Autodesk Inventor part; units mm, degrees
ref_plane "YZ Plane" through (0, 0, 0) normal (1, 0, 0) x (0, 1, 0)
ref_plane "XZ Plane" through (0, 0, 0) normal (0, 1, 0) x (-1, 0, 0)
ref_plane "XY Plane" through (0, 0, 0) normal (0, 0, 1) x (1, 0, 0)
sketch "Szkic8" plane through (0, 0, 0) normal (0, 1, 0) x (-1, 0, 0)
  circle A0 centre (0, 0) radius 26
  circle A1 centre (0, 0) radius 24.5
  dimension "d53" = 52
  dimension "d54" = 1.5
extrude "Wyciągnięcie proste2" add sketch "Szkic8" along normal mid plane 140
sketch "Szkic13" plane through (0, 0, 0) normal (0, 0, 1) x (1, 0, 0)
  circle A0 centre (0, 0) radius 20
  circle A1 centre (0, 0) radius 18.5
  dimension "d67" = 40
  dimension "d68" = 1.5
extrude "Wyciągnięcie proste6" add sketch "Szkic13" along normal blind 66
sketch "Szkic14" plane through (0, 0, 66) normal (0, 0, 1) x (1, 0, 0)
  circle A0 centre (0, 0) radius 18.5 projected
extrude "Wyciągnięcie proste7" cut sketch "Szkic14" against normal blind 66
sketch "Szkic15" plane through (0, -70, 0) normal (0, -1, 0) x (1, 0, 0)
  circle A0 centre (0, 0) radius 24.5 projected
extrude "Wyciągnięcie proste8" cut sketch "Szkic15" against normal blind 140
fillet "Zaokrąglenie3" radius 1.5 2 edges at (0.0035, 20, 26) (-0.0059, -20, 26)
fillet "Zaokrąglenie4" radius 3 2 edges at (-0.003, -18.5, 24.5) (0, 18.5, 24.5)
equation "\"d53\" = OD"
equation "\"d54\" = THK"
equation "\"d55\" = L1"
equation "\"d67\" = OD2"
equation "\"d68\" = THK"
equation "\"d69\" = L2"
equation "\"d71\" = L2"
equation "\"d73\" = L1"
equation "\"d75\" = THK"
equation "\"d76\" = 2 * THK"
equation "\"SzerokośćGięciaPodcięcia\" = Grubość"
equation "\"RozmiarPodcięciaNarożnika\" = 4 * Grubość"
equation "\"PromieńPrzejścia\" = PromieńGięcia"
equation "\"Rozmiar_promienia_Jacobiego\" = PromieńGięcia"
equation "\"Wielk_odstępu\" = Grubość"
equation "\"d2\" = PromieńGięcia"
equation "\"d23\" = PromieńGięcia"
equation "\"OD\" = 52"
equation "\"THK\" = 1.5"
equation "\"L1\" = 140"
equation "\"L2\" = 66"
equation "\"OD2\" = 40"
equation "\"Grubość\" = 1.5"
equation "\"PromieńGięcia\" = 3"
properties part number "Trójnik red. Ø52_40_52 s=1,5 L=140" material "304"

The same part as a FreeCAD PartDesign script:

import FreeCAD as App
import Part
import Sketcher

V = App.Vector


def edges_at(feature, points):
    """Names of the edges that pass closest to the given points."""
    edges = feature.Shape.Edges
    near = lambda p: min(range(len(edges)), key=lambda i: edges[i].distToShape(Part.Vertex(*p))[0])
    return sorted({f"Edge{near(p) + 1}" for p in points})

doc = App.newDocument("Part")
body = doc.addObject("PartDesign::Body", "Body")

# Sketch on XZ plane
sketch1 = body.newObject("Sketcher::SketchObject", "Sketch")
sketch1.AttachmentSupport = (doc.getObject("XZ_Plane"), [""])
sketch1.MapMode = "FlatFace"
sketch1.addGeometry([
    Part.Circle(V(0, 0, 0), V(0, 0, 1), 26),
    Part.Circle(V(0, 0, 0), V(0, 0, 1), 24.5),
], False)
sketch1.addConstraint([
    Sketcher.Constraint("Coincident", 0, 3, -1, 1),
    Sketcher.Constraint("Coincident", 1, 3, -1, 1),
    Sketcher.Constraint("Diameter", 0, 52.0),
    Sketcher.Constraint("Diameter", 1, 49.0),
])
pad1 = body.newObject("PartDesign::Pad", "Pad")
pad1.Profile = sketch1
pad1.Length = 140
pad1.Midplane = True

# Sketch on XY plane
sketch2 = body.newObject("Sketcher::SketchObject", "Sketch001")
sketch2.AttachmentSupport = (doc.getObject("XY_Plane"), [""])
sketch2.MapMode = "FlatFace"
sketch2.addGeometry([
    Part.Circle(V(0, 0, 0), V(0, 0, 1), 20),
    Part.Circle(V(0, 0, 0), V(0, 0, 1), 18.5),
], False)
sketch2.addConstraint([
    Sketcher.Constraint("Coincident", 0, 3, -1, 1),
    Sketcher.Constraint("Coincident", 1, 3, -1, 1),
    Sketcher.Constraint("Diameter", 0, 40.0),
    Sketcher.Constraint("Diameter", 1, 37.0),
])
pad2 = body.newObject("PartDesign::Pad", "Pad001")
pad2.Profile = sketch2
pad2.Length = 66

# Sketch on XY plane
sketch3 = body.newObject("Sketcher::SketchObject", "Sketch002")
sketch3.AttachmentSupport = (doc.getObject("XY_Plane"), [""])
sketch3.MapMode = "FlatFace"
sketch3.AttachmentOffset = App.Placement(V(0, 0, 66), App.Rotation())
sketch3.addGeometry(Part.Circle(V(0, 0, 0), V(0, 0, 1), 18.5), False)
sketch3.addConstraint([
    Sketcher.Constraint("Coincident", 0, 3, -1, 1),
    Sketcher.Constraint("Diameter", 0, 37.0),
])
pocket1 = body.newObject("PartDesign::Pocket", "Pocket")
pocket1.Profile = sketch3
pocket1.Length = 66

# Sketch on XZ plane
sketch4 = body.newObject("Sketcher::SketchObject", "Sketch003")
sketch4.AttachmentSupport = (doc.getObject("XZ_Plane"), [""])
sketch4.MapMode = "FlatFace"
sketch4.AttachmentOffset = App.Placement(V(0, 0, 70), App.Rotation())
sketch4.addGeometry(Part.Circle(V(0, 0, 0), V(0, 0, 1), 24.5), False)
sketch4.addConstraint([
    Sketcher.Constraint("Coincident", 0, 3, -1, 1),
    Sketcher.Constraint("Diameter", 0, 49.0),
])
pocket2 = body.newObject("PartDesign::Pocket", "Pocket001")
pocket2.Profile = sketch4
pocket2.Length = 140
doc.recompute()

fillet = body.newObject("PartDesign::Fillet", "Fillet")
fillet.Base = (pocket2, edges_at(pocket2, [(0.004, 20, 26), (-0.006, -20, 26)]))
fillet.Radius = 1.5
doc.recompute()

fillet2 = body.newObject("PartDesign::Fillet", "Fillet001")
fillet2.Base = (fillet, edges_at(fillet, [(-0.003, -18.5, 24.5), (0, 18.5, 24.5)]))
fillet2.Radius = 3

doc.recompute()
